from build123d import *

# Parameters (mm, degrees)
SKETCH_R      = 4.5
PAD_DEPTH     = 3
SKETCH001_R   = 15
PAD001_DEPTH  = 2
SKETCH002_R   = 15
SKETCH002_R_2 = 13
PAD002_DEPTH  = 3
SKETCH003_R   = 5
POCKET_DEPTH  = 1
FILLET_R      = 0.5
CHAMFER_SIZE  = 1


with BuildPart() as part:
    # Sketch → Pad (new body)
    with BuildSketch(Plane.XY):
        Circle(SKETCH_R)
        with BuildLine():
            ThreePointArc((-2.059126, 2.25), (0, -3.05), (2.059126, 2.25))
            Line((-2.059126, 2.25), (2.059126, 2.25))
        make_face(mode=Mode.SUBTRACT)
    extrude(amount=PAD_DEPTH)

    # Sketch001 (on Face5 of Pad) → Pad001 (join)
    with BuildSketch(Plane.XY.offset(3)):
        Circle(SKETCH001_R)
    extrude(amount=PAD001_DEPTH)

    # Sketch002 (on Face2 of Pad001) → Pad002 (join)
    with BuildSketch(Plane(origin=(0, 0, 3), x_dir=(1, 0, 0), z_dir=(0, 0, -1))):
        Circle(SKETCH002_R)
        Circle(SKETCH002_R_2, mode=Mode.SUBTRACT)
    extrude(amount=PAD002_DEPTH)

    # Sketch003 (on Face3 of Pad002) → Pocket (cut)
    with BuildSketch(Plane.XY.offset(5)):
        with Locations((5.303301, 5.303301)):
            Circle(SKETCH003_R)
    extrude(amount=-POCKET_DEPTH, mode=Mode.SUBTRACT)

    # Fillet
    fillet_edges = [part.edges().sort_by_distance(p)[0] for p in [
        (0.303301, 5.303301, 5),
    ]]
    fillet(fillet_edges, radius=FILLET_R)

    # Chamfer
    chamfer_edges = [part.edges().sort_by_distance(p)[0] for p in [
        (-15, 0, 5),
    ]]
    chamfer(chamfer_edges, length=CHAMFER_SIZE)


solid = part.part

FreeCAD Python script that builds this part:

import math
import FreeCAD as App
import Part
import Sketcher
from FreeCAD import Vector
Q = App.Units.Quantity


def edges_at(feature, points):
    """Names of the edges that pass closest to the given points."""
    edges = feature.Shape.Edges
    near = lambda p: min(range(len(edges)), key=lambda i: edges[i].distToShape(Part.Vertex(*p))[0])
    return sorted({f"Edge{near(p) + 1}" for p in points})

doc = App.newDocument("Part")
body = doc.addObject("PartDesign::Body", "Body")

sketch1 = body.newObject("Sketcher::SketchObject", "Sketch")
sketch1.AttachmentSupport = (doc.getObject("XY_Plane"), [""])
sketch1.MapMode = "FlatFace"
sketch1.addGeometry(Part.Circle(Vector(0, 0, 0), Vector(0, 0, 1), 4.5), False)
sketch1.addGeometry(Part.ArcOfCircle(Part.Circle(Vector(0, 0, 0), Vector(0, 0, 1), 3), math.radians(132), math.radians(408)), False)
sketch1.addGeometry(Part.LineSegment(Vector(-2.1, 2.2, 0), Vector(2.1, 2.2, 0)), False)
sketch1.addConstraint(Sketcher.Constraint("Coincident", 1, 1, 2, 1))
sketch1.addConstraint(Sketcher.Constraint("Coincident", 2, 2, 1, 2))
sketch1.addConstraint(Sketcher.Constraint("Horizontal", 2))
sketch1.addConstraint(Sketcher.Constraint("Coincident", 0, 3, -1, 1))
sketch1.addConstraint(Sketcher.Constraint("Coincident", 1, 3, -1, 1))
sketch1.addConstraint(Sketcher.Constraint("Diameter", 0, Q("9 mm")))
sketch1.addConstraint(Sketcher.Constraint("Radius", 1, Q("3.05 mm")))
sketch1.addConstraint(Sketcher.Constraint("DistanceY", -1, 1, 1, 1, Q("2.25 mm")))
pad1 = body.newObject("PartDesign::Pad", "Pad")
pad1.Profile = sketch1
pad1.Length = 3

sketch2 = body.newObject("Sketcher::SketchObject", "Sketch001")
sketch2.AttachmentSupport = (doc.getObject("XY_Plane"), [""])
sketch2.MapMode = "FlatFace"
sketch2.AttachmentOffset = App.Placement(Vector(0, 0, 3), App.Rotation())
sketch2.addGeometry(Part.Circle(Vector(0, 0, 0), Vector(0, 0, 1), 15), False)
sketch2.addConstraint(Sketcher.Constraint("Coincident", 0, 3, -1, 1))
sketch2.addConstraint(Sketcher.Constraint("Diameter", 0, Q("30 mm")))
pad2 = body.newObject("PartDesign::Pad", "Pad001")
pad2.Profile = sketch2
pad2.Length = 2

sketch3 = body.newObject("Sketcher::SketchObject", "Sketch002")
sketch3.AttachmentSupport = (doc.getObject("XY_Plane"), [""])
sketch3.MapMode = "FlatFace"
sketch3.AttachmentOffset = App.Placement(Vector(0, 0, 3), App.Rotation())
sketch3.addGeometry(Part.Circle(Vector(0, 0, 0), Vector(0, 0, 1), 15), False)
sketch3.addGeometry(Part.Circle(Vector(0, 0, 0), Vector(0, 0, 1), 13), False)
sketch3.addConstraint(Sketcher.Constraint("Coincident", 0, 3, -1, 1))
sketch3.addConstraint(Sketcher.Constraint("Coincident", 1, 3, -1, 1))
sketch3.addConstraint(Sketcher.Constraint("Diameter", 0, Q("30 mm")))
sketch3.addConstraint(Sketcher.Constraint("Diameter", 1, Q("26 mm")))
pad3 = body.newObject("PartDesign::Pad", "Pad002")
pad3.Profile = sketch3
pad3.Length = 3
pad3.Reversed = True

sketch4 = body.newObject("Sketcher::SketchObject", "Sketch003")
sketch4.AttachmentSupport = (doc.getObject("XY_Plane"), [""])
sketch4.MapMode = "FlatFace"
sketch4.AttachmentOffset = App.Placement(Vector(0, 0, 5), App.Rotation())
sketch4.addGeometry(Part.Circle(Vector(5, 5, 0), Vector(0, 0, 1), 5), False)
sketch4.addConstraint(Sketcher.Constraint("Diameter", 0, Q("10 mm")))
sketch4.addConstraint(Sketcher.Constraint("DistanceX", -1, 1, 0, 3, Q("5.303301 mm")))
sketch4.addConstraint(Sketcher.Constraint("DistanceY", -1, 1, 0, 3, Q("5.303301 mm")))
pocket1 = body.newObject("PartDesign::Pocket", "Pocket")
pocket1.Profile = sketch4
pocket1.Length = 1
doc.recompute()

fillet = body.newObject("PartDesign::Fillet", "Fillet")
fillet.Base = (pocket1, edges_at(pocket1, [(0.303, 5.303, 5)]))
fillet.Radius = 0.5
doc.recompute()

chamfer = body.newObject("PartDesign::Chamfer", "Chamfer")
chamfer.Base = (fillet, edges_at(fillet, [(-15, 0, 5)]))
chamfer.Size = 1

doc.recompute()
